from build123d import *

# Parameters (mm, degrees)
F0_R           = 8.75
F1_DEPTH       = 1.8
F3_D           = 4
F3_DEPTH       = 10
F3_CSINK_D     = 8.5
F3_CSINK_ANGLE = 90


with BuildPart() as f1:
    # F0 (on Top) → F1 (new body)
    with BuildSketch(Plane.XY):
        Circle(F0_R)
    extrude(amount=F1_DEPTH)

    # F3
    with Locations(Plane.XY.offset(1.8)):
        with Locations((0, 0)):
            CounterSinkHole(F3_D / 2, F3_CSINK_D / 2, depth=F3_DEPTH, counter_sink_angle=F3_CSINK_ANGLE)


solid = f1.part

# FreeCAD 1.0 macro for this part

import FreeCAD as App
import Part
import Sketcher
from FreeCAD import Vector
Q = App.Units.Quantity

doc = App.newDocument("Part")
body = doc.addObject("PartDesign::Body", "Body")

# Sketch on XY plane
sketch1 = body.newObject("Sketcher::SketchObject", "Sketch")
sketch1.AttachmentSupport = (doc.getObject("XY_Plane"), [""])
sketch1.MapMode = "FlatFace"
sketch1.addGeometry(Part.Circle(Vector(0, 0, 0), Vector(0, 0, 1), 8.75), False)
sketch1.addConstraint([
    Sketcher.Constraint("Coincident", 0, 3, -1, 1),
    Sketcher.Constraint("Diameter", 0, Q("17.5 mm")),
])
pad1 = body.newObject("PartDesign::Pad", "Pad")
pad1.Profile = sketch1
pad1.Length = 1.8

# Sketch on XY plane
sketch2 = body.newObject("Sketcher::SketchObject", "Sketch001")
sketch2.AttachmentSupport = (doc.getObject("XY_Plane"), [""])
sketch2.MapMode = "FlatFace"
sketch2.AttachmentOffset = App.Placement(Vector(0, 0, 1.8), App.Rotation())
sketch2.addGeometry(Part.Circle(Vector(0, 0, 0), Vector(0, 0, 1), 2), False)
sketch2.addConstraint([
    Sketcher.Constraint("Coincident", 0, 3, -1, 1),
    Sketcher.Constraint("Diameter", 0, Q("4 mm")),
])
doc.recompute()
hole = body.newObject("PartDesign::Hole", "Hole")
hole.Profile = sketch2
hole.ThreadType = "None"
hole.Diameter = 4
hole.DepthType = "Dimension"
hole.Depth = 10
hole.DrillPoint = "Flat"
hole.HoleCutType = "Countersink"
hole.HoleCutDiameter = 8.5
hole.HoleCutCountersinkAngle = 90

doc.recompute()
